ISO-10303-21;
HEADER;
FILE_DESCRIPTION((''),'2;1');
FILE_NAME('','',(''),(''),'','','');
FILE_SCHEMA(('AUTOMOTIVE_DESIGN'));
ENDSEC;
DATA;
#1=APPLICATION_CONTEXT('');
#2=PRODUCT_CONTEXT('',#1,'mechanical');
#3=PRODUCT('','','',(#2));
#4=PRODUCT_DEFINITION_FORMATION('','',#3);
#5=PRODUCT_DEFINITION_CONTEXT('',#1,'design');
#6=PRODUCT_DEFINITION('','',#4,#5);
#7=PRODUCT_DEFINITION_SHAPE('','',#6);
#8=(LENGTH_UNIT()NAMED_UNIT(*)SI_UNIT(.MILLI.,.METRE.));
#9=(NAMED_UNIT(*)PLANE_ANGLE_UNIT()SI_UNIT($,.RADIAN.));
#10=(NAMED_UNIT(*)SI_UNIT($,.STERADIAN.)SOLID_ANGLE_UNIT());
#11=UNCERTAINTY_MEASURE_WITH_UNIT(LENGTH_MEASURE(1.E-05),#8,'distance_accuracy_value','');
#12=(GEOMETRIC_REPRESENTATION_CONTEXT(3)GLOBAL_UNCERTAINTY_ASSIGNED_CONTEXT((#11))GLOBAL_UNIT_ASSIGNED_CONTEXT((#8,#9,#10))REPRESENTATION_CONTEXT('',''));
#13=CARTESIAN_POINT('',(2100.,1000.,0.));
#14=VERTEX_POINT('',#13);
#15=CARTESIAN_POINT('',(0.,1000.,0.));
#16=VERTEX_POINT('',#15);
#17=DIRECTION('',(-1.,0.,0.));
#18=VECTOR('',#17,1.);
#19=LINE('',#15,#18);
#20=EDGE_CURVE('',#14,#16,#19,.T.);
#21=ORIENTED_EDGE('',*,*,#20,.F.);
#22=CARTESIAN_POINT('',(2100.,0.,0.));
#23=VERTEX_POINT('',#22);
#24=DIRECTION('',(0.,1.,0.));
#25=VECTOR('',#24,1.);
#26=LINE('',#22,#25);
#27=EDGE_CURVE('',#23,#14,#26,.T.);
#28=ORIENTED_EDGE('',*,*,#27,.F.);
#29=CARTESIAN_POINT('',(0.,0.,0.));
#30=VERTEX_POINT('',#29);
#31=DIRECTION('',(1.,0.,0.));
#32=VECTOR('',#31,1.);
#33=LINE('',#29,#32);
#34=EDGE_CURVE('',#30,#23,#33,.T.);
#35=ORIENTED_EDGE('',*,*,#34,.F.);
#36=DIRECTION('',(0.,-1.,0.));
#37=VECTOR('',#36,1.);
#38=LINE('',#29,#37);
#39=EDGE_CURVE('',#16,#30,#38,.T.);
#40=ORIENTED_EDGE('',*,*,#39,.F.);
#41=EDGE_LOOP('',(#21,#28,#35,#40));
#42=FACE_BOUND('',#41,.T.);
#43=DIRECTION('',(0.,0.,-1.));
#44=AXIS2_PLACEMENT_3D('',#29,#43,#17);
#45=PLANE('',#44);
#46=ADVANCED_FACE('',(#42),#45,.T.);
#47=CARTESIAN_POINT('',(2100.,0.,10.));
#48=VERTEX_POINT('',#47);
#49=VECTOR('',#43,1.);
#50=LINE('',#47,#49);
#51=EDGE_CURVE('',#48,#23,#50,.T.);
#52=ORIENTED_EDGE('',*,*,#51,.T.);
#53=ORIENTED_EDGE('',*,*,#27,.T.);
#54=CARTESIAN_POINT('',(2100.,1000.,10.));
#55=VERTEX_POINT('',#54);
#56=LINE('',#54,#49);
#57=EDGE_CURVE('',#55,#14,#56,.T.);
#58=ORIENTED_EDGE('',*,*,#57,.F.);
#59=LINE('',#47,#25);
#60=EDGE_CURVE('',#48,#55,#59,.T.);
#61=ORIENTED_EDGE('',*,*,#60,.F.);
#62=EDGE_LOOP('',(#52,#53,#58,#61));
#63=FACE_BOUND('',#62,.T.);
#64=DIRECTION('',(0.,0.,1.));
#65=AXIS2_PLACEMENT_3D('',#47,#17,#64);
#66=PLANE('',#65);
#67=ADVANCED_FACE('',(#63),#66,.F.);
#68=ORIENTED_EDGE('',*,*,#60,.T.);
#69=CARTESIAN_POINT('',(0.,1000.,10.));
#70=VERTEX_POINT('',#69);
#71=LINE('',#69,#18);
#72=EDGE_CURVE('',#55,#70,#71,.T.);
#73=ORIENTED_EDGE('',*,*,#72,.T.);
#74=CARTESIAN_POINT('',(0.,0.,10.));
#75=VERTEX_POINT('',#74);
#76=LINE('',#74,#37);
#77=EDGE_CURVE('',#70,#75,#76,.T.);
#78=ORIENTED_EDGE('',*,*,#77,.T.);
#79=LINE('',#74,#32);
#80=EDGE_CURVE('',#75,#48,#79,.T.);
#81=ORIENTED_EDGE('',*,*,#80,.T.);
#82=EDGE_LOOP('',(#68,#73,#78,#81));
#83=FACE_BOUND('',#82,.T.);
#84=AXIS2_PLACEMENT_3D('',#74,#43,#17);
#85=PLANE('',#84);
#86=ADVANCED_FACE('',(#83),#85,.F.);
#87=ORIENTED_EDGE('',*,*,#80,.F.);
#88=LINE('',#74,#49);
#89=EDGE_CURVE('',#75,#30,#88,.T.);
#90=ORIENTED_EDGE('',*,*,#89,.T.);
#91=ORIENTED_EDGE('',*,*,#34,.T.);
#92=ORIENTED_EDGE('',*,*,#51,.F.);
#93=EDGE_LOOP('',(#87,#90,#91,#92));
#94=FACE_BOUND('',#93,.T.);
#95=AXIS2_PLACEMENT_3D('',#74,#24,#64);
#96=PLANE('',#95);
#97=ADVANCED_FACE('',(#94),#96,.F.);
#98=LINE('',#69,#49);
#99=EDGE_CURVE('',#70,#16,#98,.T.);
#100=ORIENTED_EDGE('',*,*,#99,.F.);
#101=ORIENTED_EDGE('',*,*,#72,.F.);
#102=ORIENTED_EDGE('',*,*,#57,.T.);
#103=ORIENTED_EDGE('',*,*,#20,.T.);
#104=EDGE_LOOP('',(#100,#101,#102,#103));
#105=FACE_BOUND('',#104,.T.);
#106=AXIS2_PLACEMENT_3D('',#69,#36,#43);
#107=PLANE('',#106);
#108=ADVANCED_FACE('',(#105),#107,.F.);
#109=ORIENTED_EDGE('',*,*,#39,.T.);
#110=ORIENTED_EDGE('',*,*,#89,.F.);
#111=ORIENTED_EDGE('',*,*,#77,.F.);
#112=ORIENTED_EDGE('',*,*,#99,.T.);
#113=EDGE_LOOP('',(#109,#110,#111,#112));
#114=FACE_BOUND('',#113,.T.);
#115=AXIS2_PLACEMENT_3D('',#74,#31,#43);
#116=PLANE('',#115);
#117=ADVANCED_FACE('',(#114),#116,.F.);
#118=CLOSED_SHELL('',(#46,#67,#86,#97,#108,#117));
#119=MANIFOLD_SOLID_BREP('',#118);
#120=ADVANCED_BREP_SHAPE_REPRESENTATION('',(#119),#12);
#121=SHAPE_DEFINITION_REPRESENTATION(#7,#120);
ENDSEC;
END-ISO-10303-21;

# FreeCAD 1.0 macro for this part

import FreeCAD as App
import Part
import Sketcher

doc = App.newDocument("Part")
body = doc.addObject("PartDesign::Body", "Body")

sketch1 = body.newObject("Sketcher::SketchObject", "Sketch")
sketch1.AttachmentSupport = (doc.getObject("XY_Plane"), [""])
sketch1.MapMode = "FlatFace"
sketch1.addGeometry([
    Part.LineSegment(App.Vector(0, 1000, 0), App.Vector(0, 0, 0)),
    Part.LineSegment(App.Vector(0, 0, 0), App.Vector(2100, 0, 0)),
    Part.LineSegment(App.Vector(2100, 0, 0), App.Vector(2100, 1000, 0)),
    Part.LineSegment(App.Vector(2100, 1000, 0), App.Vector(0, 1000, 0)),
], False)
sketch1.addConstraint([
    Sketcher.Constraint("Coincident", 0, 2, 1, 1),
    Sketcher.Constraint("Coincident", 1, 2, 2, 1),
    Sketcher.Constraint("Coincident", 2, 2, 3, 1),
    Sketcher.Constraint("Coincident", 3, 2, 0, 1),
    Sketcher.Constraint("Vertical", 0),
    Sketcher.Constraint("Horizontal", 1),
    Sketcher.Constraint("Vertical", 2),
    Sketcher.Constraint("Horizontal", 3),
    Sketcher.Constraint("Coincident", 0, 2, -1, 1),
    Sketcher.Constraint("DistanceX", 1, 1, 1, 2, 2100.0),
    Sketcher.Constraint("DistanceY", 0, 2, 0, 1, 1000.0),
])
pad1 = body.newObject("PartDesign::Pad", "Pad")
pad1.Profile = sketch1
pad1.Length = 10

doc.recompute()
